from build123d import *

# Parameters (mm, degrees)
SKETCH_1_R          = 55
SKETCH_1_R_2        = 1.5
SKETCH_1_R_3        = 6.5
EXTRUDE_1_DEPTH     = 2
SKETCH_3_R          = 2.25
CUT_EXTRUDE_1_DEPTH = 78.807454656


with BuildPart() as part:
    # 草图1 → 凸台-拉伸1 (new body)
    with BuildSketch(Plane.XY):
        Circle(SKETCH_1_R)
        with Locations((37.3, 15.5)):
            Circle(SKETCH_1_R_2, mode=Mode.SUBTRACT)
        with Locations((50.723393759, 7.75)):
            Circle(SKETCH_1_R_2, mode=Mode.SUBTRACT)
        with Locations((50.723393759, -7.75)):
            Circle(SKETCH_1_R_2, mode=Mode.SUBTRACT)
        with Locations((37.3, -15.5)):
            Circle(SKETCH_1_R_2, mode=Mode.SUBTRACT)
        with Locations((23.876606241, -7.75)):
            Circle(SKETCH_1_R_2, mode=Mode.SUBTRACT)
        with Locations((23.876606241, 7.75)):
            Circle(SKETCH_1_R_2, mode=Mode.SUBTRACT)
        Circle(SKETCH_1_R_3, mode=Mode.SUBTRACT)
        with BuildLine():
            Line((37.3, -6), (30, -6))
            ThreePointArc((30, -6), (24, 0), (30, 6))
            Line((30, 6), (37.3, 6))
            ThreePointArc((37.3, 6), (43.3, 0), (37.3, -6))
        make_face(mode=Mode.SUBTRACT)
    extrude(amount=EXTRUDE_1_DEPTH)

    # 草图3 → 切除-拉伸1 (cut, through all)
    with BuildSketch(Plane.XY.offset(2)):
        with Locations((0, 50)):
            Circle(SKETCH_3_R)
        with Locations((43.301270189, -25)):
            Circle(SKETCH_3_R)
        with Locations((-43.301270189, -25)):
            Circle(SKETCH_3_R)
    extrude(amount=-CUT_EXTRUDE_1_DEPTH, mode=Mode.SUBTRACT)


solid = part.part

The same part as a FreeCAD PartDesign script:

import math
import FreeCAD as App
import Part
import Sketcher
Q = App.Units.Quantity

doc = App.newDocument("Part")
body = doc.addObject("PartDesign::Body", "Body")

# Sketch on XY plane
sketch1 = body.newObject("Sketcher::SketchObject", "Sketch")
sketch1.AttachmentSupport = (doc.getObject("XY_Plane"), [""])
sketch1.MapMode = "FlatFace"
sketch1.addGeometry([
    Part.Circle(App.Vector(0, 0, 0), App.Vector(0, 0, 1), 55),  # 0
    Part.Circle(App.Vector(37.3, -15.5, 0), App.Vector(0, 0, 1), 1.5),  # 1
    Part.Circle(App.Vector(23.876606, -7.75, 0), App.Vector(0, 0, 1), 1.5),  # 2
    Part.Circle(App.Vector(50.723394, -7.75, 0), App.Vector(0, 0, 1), 1.5),  # 3
    Part.Circle(App.Vector(0, 0, 0), App.Vector(0, 0, 1), 6.5),  # 4
    Part.ArcOfCircle(Part.Circle(App.Vector(37.3, 0, 0), App.Vector(0, 0, 1), 6), math.radians(-90), math.radians(90)),  # 5
    Part.LineSegment(App.Vector(37.3, -6, 0), App.Vector(30, -6, 0)),  # 6
    Part.ArcOfCircle(Part.Circle(App.Vector(30, 0, 0), App.Vector(0, 0, 1), 6), math.radians(90), math.radians(270)),  # 7
    Part.LineSegment(App.Vector(30, 6, 0), App.Vector(37.3, 6, 0)),  # 8
    Part.Circle(App.Vector(23.876606, 7.75, 0), App.Vector(0, 0, 1), 1.5),  # 9
    Part.Circle(App.Vector(50.723394, 7.75, 0), App.Vector(0, 0, 1), 1.5),  # 10
    Part.Circle(App.Vector(37.3, 15.5, 0), App.Vector(0, 0, 1), 1.5),  # 11
], False)
sketch1.addConstraint([
    Sketcher.Constraint("Tangent", 5, 1, 6, 1),
    Sketcher.Constraint("Tangent", 6, 2, 7, 2),
    Sketcher.Constraint("Tangent", 7, 1, 8, 1),
    Sketcher.Constraint("Tangent", 8, 2, 5, 2),
    Sketcher.Constraint("Horizontal", 6),
    Sketcher.Constraint("Horizontal", 8),
    Sketcher.Constraint("Coincident", 0, 3, -1, 1),
    Sketcher.Constraint("Coincident", 4, 3, -1, 1),
    Sketcher.Constraint("Equal", 1, 2),
    Sketcher.Constraint("Equal", 2, 3),
    Sketcher.Constraint("Equal", 3, 9),
    Sketcher.Constraint("Equal", 9, 10),
    Sketcher.Constraint("Equal", 10, 11),
    Sketcher.Constraint("Symmetric", 2, 3, 9, 3, -1),
    Sketcher.Constraint("Symmetric", 3, 3, 10, 3, -1),
    Sketcher.Constraint("Symmetric", 1, 3, 11, 3, -1),
    Sketcher.Constraint("PointOnObject", 5, 3, -1),
    Sketcher.Constraint("Horizontal", 2, 3, 3, 3),
    Sketcher.Constraint("Vertical", 1, 3, 5, 3),
    Sketcher.Constraint("Diameter", 0, Q("110 mm")),
    Sketcher.Constraint("Diameter", 1, Q("3 mm")),
    Sketcher.Constraint("Diameter", 4, Q("13 mm")),
    Sketcher.Constraint("Radius", 5, Q("6 mm")),
    Sketcher.Constraint("DistanceX", 6, 2, 6, 1, Q("7.3 mm")),
    Sketcher.Constraint("DistanceX", -1, 1, 7, 3, Q("30 mm")),
    Sketcher.Constraint("DistanceY", 1, 3, -1, 1, Q("15.5 mm")),
    Sketcher.Constraint("DistanceY", 2, 3, 9, 3, Q("15.5 mm")),
    Sketcher.Constraint("DistanceX", -1, 1, 2, 3, Q("23.876606 mm")),
    Sketcher.Constraint("DistanceX", -1, 1, 3, 3, Q("50.723394 mm")),
])
pad1 = body.newObject("PartDesign::Pad", "Pad")
pad1.Profile = sketch1
pad1.Length = 2

# Sketch on XY plane
sketch2 = body.newObject("Sketcher::SketchObject", "Sketch001")
sketch2.AttachmentSupport = (doc.getObject("XY_Plane"), [""])
sketch2.MapMode = "FlatFace"
sketch2.AttachmentOffset = App.Placement(App.Vector(0, 0, 2), App.Rotation())
sketch2.addGeometry([
    Part.Circle(App.Vector(0, 50, 0), App.Vector(0, 0, 1), 2.25),
    Part.Circle(App.Vector(43.30127, -25, 0), App.Vector(0, 0, 1), 2.25),
    Part.Circle(App.Vector(-43.30127, -25, 0), App.Vector(0, 0, 1), 2.25),
], False)
sketch2.addConstraint([
    Sketcher.Constraint("Equal", 0, 1),
    Sketcher.Constraint("Equal", 1, 2),
    Sketcher.Constraint("Symmetric", 1, 3, 2, 3, -2),
    Sketcher.Constraint("PointOnObject", 0, 3, -2),
    Sketcher.Constraint("Diameter", 0, Q("4.5 mm")),
    Sketcher.Constraint("DistanceY", -1, 1, 0, 3, Q("50 mm")),
    Sketcher.Constraint("DistanceY", 1, 3, -1, 1, Q("25 mm")),
    Sketcher.Constraint("DistanceX", -1, 1, 1, 3, Q("43.30127 mm")),
])
pocket1 = body.newObject("PartDesign::Pocket", "Pocket")
pocket1.Profile = sketch2
pocket1.Type = "ThroughAll"

doc.recompute()
